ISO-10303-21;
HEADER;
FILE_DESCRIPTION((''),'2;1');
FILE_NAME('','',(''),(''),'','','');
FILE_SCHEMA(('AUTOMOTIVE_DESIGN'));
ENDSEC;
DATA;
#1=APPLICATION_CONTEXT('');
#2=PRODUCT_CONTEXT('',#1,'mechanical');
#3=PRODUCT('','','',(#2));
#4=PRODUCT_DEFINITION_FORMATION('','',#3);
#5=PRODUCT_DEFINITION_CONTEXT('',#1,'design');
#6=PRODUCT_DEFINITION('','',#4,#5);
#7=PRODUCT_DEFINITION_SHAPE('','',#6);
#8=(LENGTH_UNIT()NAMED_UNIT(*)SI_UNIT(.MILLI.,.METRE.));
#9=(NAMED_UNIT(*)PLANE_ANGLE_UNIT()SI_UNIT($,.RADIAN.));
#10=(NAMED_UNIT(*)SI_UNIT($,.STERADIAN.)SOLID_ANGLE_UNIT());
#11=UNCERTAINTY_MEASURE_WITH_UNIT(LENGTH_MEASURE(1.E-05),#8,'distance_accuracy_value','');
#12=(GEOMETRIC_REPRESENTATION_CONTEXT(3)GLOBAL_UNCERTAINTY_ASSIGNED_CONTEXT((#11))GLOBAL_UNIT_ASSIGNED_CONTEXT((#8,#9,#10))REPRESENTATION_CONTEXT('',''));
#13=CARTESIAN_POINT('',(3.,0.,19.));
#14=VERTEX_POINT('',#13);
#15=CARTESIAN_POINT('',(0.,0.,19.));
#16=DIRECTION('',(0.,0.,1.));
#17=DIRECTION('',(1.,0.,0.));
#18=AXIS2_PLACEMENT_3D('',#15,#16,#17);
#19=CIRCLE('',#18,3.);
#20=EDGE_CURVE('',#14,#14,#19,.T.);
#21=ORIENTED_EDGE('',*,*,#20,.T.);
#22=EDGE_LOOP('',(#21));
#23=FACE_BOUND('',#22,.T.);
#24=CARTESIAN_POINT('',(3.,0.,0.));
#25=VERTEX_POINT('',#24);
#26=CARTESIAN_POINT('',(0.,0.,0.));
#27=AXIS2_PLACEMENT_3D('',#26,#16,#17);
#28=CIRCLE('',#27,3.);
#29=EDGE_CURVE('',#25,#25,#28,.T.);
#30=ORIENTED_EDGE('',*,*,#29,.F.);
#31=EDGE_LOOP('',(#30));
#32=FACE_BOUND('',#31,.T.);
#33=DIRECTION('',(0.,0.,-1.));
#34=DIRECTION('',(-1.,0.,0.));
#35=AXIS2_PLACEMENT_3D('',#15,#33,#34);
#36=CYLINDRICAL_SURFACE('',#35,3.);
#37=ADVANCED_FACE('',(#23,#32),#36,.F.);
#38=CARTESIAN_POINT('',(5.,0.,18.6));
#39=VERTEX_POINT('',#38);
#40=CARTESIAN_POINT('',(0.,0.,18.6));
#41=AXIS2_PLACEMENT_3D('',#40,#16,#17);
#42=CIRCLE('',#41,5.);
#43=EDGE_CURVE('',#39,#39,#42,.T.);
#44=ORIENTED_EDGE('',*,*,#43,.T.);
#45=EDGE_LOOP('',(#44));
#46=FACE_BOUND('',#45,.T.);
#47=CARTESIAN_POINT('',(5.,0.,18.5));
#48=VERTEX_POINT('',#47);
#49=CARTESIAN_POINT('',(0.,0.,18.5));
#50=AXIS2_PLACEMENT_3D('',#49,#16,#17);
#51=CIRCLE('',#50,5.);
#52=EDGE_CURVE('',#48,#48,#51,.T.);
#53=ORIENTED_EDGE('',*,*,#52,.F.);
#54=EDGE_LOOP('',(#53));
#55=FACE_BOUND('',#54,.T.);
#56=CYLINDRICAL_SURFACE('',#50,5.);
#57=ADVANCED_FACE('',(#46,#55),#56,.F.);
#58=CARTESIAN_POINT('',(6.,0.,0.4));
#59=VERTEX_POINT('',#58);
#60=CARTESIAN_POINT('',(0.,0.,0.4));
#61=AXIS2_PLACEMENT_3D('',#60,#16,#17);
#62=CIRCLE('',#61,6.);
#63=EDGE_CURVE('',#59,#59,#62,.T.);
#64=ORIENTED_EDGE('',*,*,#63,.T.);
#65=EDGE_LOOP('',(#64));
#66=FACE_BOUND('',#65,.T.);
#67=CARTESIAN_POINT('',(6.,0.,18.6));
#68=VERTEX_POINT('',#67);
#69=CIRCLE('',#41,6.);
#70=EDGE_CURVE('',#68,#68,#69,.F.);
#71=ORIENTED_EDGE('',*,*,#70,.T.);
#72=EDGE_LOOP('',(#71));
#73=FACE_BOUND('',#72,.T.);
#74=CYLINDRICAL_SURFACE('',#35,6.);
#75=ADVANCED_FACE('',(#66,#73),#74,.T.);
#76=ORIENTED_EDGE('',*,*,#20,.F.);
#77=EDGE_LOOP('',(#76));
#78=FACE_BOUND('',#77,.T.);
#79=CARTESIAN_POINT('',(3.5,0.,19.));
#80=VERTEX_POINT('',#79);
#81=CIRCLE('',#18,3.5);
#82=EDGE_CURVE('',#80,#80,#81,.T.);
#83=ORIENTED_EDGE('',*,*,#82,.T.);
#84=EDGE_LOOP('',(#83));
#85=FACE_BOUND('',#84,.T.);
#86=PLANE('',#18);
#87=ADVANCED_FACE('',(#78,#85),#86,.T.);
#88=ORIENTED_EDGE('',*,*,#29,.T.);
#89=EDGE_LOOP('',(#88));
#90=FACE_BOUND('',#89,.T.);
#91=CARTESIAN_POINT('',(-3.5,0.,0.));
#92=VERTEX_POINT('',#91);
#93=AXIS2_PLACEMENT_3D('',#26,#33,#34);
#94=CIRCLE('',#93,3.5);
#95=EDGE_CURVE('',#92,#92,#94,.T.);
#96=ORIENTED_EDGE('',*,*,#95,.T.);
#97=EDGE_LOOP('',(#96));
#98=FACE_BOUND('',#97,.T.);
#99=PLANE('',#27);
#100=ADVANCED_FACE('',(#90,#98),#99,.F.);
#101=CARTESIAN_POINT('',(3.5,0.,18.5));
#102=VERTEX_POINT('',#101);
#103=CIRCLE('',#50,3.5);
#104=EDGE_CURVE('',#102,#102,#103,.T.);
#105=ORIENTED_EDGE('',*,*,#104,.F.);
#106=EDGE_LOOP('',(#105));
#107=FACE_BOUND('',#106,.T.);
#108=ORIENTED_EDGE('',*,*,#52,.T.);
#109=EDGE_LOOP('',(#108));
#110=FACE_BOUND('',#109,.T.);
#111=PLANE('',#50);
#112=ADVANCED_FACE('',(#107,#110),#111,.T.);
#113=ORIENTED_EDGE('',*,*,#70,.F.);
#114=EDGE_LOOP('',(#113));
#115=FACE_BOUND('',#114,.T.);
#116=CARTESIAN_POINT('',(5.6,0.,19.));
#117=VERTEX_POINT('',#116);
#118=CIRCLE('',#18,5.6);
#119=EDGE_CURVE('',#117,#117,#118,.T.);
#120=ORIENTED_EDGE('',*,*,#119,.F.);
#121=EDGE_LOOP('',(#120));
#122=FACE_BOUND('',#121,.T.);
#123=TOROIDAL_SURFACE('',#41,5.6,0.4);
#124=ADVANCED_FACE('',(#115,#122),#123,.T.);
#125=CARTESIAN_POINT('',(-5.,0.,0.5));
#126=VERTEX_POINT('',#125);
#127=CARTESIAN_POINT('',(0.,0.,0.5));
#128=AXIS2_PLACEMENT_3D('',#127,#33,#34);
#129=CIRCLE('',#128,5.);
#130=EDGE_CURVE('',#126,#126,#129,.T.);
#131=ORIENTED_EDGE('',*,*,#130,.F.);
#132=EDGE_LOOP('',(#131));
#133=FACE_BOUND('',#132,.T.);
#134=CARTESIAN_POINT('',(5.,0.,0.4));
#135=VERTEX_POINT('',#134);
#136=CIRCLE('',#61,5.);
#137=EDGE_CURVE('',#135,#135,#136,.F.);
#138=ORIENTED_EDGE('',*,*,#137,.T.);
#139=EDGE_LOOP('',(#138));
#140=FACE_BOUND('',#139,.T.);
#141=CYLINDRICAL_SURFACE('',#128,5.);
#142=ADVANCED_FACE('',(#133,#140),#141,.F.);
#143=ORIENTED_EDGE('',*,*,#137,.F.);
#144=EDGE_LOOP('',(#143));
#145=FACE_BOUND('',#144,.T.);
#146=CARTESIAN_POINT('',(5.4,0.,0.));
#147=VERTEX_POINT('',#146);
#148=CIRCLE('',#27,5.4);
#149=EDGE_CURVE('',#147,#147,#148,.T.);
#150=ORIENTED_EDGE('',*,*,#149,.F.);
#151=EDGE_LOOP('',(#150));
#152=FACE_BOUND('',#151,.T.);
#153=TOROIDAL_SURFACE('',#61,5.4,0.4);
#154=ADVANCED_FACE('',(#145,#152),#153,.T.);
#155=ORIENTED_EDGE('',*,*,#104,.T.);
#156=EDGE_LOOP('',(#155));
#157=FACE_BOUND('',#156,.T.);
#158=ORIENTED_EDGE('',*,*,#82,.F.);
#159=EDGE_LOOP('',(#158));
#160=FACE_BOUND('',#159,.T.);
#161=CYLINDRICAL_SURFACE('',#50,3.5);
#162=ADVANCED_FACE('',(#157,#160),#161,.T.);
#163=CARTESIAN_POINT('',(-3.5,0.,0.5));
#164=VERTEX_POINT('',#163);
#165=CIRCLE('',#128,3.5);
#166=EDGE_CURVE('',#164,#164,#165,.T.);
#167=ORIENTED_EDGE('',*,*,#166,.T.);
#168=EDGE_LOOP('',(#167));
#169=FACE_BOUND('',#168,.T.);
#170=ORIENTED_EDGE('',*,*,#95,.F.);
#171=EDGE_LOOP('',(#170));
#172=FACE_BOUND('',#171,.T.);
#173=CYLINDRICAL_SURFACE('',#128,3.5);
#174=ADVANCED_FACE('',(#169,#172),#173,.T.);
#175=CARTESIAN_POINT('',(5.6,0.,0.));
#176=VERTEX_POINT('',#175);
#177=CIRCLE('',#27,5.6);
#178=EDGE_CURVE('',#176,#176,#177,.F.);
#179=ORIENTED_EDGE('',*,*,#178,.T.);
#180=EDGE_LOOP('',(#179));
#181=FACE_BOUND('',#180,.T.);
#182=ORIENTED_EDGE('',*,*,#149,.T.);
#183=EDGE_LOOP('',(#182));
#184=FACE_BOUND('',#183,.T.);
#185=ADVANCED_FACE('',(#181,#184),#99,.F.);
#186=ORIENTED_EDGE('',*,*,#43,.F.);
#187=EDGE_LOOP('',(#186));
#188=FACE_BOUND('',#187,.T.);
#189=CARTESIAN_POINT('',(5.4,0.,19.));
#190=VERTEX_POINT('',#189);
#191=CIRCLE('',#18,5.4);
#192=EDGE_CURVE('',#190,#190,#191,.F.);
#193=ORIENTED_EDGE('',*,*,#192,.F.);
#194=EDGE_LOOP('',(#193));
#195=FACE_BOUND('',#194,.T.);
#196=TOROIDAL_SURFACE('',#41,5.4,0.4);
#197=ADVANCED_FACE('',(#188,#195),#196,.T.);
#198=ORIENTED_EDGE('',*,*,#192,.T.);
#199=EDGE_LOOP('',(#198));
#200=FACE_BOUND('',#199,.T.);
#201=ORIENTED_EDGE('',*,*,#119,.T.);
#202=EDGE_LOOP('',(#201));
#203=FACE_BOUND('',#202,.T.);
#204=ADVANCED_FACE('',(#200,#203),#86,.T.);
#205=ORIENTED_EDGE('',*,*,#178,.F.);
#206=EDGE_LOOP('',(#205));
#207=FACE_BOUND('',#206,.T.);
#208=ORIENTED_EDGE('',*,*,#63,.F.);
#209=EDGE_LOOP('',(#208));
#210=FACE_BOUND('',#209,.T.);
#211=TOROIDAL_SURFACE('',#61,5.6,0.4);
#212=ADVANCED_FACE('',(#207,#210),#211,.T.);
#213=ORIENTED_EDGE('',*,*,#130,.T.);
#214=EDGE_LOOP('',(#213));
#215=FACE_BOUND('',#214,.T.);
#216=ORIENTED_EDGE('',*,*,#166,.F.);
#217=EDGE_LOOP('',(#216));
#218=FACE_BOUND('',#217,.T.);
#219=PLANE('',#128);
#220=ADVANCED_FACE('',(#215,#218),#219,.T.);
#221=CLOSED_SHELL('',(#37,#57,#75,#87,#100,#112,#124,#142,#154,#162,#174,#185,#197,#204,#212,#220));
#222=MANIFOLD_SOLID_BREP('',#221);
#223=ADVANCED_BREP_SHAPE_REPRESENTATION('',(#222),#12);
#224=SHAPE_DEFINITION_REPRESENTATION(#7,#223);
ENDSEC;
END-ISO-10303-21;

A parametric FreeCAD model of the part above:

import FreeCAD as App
import Part
import Sketcher
Q = App.Units.Quantity


def edges_at(feature, points):
    """Names of the edges that pass closest to the given points."""
    edges = feature.Shape.Edges
    near = lambda p: min(range(len(edges)), key=lambda i: edges[i].distToShape(Part.Vertex(*p))[0])
    return sorted({f"Edge{near(p) + 1}" for p in points})

doc = App.newDocument("Part")
body = doc.addObject("PartDesign::Body", "Body")

# Sketch on XY plane
sketch1 = body.newObject("Sketcher::SketchObject", "Sketch")
sketch1.AttachmentSupport = (doc.getObject("XY_Plane"), [""])
sketch1.MapMode = "FlatFace"
sketch1.addGeometry([
    Part.Circle(App.Vector(0, 0, 0), App.Vector(0, 0, 1), 6),
    Part.Circle(App.Vector(0, 0, 0), App.Vector(0, 0, 1), 3),
], False)
sketch1.addConstraint([
    Sketcher.Constraint("Coincident", 0, 3, -1, 1),
    Sketcher.Constraint("Coincident", 1, 3, -1, 1),
    Sketcher.Constraint("Diameter", 0, Q("12 mm")),
    Sketcher.Constraint("Diameter", 1, Q("6 mm")),
])
pad1 = body.newObject("PartDesign::Pad", "Pad")
pad1.Profile = sketch1
pad1.Length = 19

# Sketch on XY plane
sketch2 = body.newObject("Sketcher::SketchObject", "Sketch001")
sketch2.AttachmentSupport = (doc.getObject("XY_Plane"), [""])
sketch2.MapMode = "FlatFace"
sketch2.AttachmentOffset = App.Placement(App.Vector(0, 0, 19), App.Rotation())
sketch2.addGeometry([
    Part.Circle(App.Vector(0, 0, 0), App.Vector(0, 0, 1), 5),
    Part.Circle(App.Vector(0, 0, 0), App.Vector(0, 0, 1), 3.5),
], False)
sketch2.addConstraint([
    Sketcher.Constraint("Coincident", 0, 3, -1, 1),
    Sketcher.Constraint("Coincident", 1, 3, -1, 1),
    Sketcher.Constraint("Diameter", 0, Q("10 mm")),
    Sketcher.Constraint("Diameter", 1, Q("7 mm")),
])
pocket1 = body.newObject("PartDesign::Pocket", "Pocket")
pocket1.Profile = sketch2
pocket1.Length = 0.5

# Sketch on XY plane
sketch3 = body.newObject("Sketcher::SketchObject", "Sketch002")
sketch3.AttachmentSupport = (doc.getObject("XY_Plane"), [""])
sketch3.MapMode = "FlatFace"
sketch3.AttachmentOffset = App.Placement(App.Vector(0, 0, 0.5), App.Rotation())
sketch3.addGeometry([
    Part.Circle(App.Vector(0, 0, 0), App.Vector(0, 0, 1), 5),
    Part.Circle(App.Vector(0, 0, 0), App.Vector(0, 0, 1), 3.5),
], False)
sketch3.addConstraint([
    Sketcher.Constraint("Coincident", 0, 3, -1, 1),
    Sketcher.Constraint("Coincident", 1, 3, -1, 1),
    Sketcher.Constraint("Diameter", 0, Q("10 mm")),
    Sketcher.Constraint("Diameter", 1, Q("7 mm")),
])
pocket2 = body.newObject("PartDesign::Pocket", "Pocket001")
pocket2.Profile = sketch3
pocket2.Length = 0.5
doc.recompute()

fillet = body.newObject("PartDesign::Fillet", "Fillet")
fillet.Base = (pocket2, edges_at(pocket2, [
    (-5, 0, 19),
    (-6, 0, 0),
    (-5, 0, 0),
    (-6, 0, 19),
]))
fillet.Radius = 0.4

doc.recompute()
